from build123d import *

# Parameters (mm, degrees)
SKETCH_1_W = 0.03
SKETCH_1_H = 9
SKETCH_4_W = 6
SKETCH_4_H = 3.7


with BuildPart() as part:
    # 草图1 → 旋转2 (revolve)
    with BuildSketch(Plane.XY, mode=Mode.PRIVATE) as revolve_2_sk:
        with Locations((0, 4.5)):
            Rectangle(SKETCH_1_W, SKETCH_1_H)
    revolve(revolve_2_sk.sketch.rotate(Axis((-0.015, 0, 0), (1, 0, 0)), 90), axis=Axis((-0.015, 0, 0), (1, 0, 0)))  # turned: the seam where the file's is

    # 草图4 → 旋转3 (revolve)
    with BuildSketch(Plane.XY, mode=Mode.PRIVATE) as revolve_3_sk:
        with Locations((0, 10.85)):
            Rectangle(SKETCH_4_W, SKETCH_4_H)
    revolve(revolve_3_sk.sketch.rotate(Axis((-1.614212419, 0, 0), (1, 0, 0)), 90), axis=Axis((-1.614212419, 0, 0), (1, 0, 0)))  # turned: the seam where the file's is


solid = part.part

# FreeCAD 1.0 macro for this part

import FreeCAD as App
import Part
import Sketcher
Q = App.Units.Quantity

doc = App.newDocument("Part")
body = doc.addObject("PartDesign::Body", "Body")

sketch1 = body.newObject("Sketcher::SketchObject", "Sketch")
sketch1.AttachmentSupport = (doc.getObject("XY_Plane"), [""])
sketch1.MapMode = "FlatFace"
sketch1.addGeometry(Part.LineSegment(App.Vector(-0.015, 9, 0), App.Vector(-0.015, 0, 0)), False)
sketch1.addGeometry(Part.LineSegment(App.Vector(-0.015, 0, 0), App.Vector(0.015, 0, 0)), False)
sketch1.addGeometry(Part.LineSegment(App.Vector(0.015, 0, 0), App.Vector(0.015, 9, 0)), False)
sketch1.addGeometry(Part.LineSegment(App.Vector(0.015, 9, 0), App.Vector(-0.015, 9, 0)), False)
sketch1.addConstraint(Sketcher.Constraint("Coincident", 0, 2, 1, 1))
sketch1.addConstraint(Sketcher.Constraint("Coincident", 1, 2, 2, 1))
sketch1.addConstraint(Sketcher.Constraint("Coincident", 2, 2, 3, 1))
sketch1.addConstraint(Sketcher.Constraint("Coincident", 3, 2, 0, 1))
sketch1.addConstraint(Sketcher.Constraint("Vertical", 0))
sketch1.addConstraint(Sketcher.Constraint("Horizontal", 1))
sketch1.addConstraint(Sketcher.Constraint("Vertical", 2))
sketch1.addConstraint(Sketcher.Constraint("Horizontal", 3))
sketch1.addConstraint(Sketcher.Constraint("Symmetric", 0, 2, 1, 2, -1, 1))
sketch1.addConstraint(Sketcher.Constraint("DistanceY", 0, 2, 0, 1, Q("9 mm")))
sketch1.addConstraint(Sketcher.Constraint("DistanceX", 1, 1, 1, 2, Q("0.03 mm")))
revolution = body.newObject("PartDesign::Revolution", "Revolution")
revolution.Profile = sketch1
revolution.ReferenceAxis = (sketch1, ["H_Axis"])
revolution.Angle = 360

sketch2 = body.newObject("Sketcher::SketchObject", "Sketch001")
sketch2.AttachmentSupport = (doc.getObject("XY_Plane"), [""])
sketch2.MapMode = "FlatFace"
sketch2.addGeometry(Part.LineSegment(App.Vector(-3, 12.7, 0), App.Vector(-3, 9, 0)), False)
sketch2.addGeometry(Part.LineSegment(App.Vector(-3, 9, 0), App.Vector(3, 9, 0)), False)
sketch2.addGeometry(Part.LineSegment(App.Vector(3, 9, 0), App.Vector(3, 12.7, 0)), False)
sketch2.addGeometry(Part.LineSegment(App.Vector(3, 12.7, 0), App.Vector(-3, 12.7, 0)), False)
sketch2.addConstraint(Sketcher.Constraint("Coincident", 0, 2, 1, 1))
sketch2.addConstraint(Sketcher.Constraint("Coincident", 1, 2, 2, 1))
sketch2.addConstraint(Sketcher.Constraint("Coincident", 2, 2, 3, 1))
sketch2.addConstraint(Sketcher.Constraint("Coincident", 3, 2, 0, 1))
sketch2.addConstraint(Sketcher.Constraint("Vertical", 0))
sketch2.addConstraint(Sketcher.Constraint("Horizontal", 1))
sketch2.addConstraint(Sketcher.Constraint("Vertical", 2))
sketch2.addConstraint(Sketcher.Constraint("Horizontal", 3))
sketch2.addConstraint(Sketcher.Constraint("DistanceX", 1, 1, 1, 2, Q("6 mm")))
sketch2.addConstraint(Sketcher.Constraint("DistanceY", 0, 2, 0, 1, Q("3.7 mm")))
sketch2.addConstraint(Sketcher.Constraint("DistanceX", 0, 2, -1, 1, Q("3 mm")))
sketch2.addConstraint(Sketcher.Constraint("DistanceY", -1, 1, 0, 2, Q("9 mm")))
revolution2 = body.newObject("PartDesign::Revolution", "Revolution001")
revolution2.Profile = sketch2
revolution2.ReferenceAxis = (sketch2, ["H_Axis"])
revolution2.Angle = 360

doc.recompute()
